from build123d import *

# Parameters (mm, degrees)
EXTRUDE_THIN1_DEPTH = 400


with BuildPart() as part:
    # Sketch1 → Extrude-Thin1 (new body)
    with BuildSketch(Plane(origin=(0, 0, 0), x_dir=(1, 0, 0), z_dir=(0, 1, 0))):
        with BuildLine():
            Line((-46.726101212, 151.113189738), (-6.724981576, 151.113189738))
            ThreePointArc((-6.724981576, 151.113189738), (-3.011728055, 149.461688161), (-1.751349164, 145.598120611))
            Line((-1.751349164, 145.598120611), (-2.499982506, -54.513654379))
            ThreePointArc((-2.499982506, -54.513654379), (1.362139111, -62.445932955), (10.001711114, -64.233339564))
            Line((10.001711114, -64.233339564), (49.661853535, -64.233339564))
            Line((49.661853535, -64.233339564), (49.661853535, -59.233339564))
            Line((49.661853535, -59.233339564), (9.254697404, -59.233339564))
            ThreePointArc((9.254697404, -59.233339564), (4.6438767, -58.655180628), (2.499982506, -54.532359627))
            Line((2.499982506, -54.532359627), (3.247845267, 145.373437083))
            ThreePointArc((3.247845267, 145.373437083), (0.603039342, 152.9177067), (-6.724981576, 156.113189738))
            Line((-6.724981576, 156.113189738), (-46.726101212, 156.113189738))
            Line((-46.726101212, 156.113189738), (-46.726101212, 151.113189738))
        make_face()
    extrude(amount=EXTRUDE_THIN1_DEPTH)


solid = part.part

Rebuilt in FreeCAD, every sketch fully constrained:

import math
import FreeCAD as App
import Part
import Sketcher

doc = App.newDocument("Part")
params = doc.addObject("Spreadsheet::Sheet", "Params")
for row, (alias, value) in enumerate([
    ("sketch1_height", "5 mm"),
    ("pad1_length", "400 mm"),
], start=1):
    params.set(f"A{row}", alias)
    params.set(f"B{row}", "=" + value)
    params.setAlias(f"B{row}", alias)

body = doc.addObject("PartDesign::Body", "Body")

# Sketch on XZ plane
sketch1 = body.newObject("Sketcher::SketchObject", "Sketch")
sketch1.AttachmentSupport = (doc.getObject("XZ_Plane"), [""])
sketch1.MapMode = "FlatFace"
sketch1.addGeometry([
    Part.LineSegment(App.Vector(-46.726101, -151.11319, 0), App.Vector(-6.724982, -151.11319, 0)),  # 0
    Part.ArcOfCircle(Part.Circle(App.Vector(-6.724982, -146.11298, 0), App.Vector(0, 0, 1), 5.00021), math.radians(-90), math.radians(5.910079)),  # 1
    Part.LineSegment(App.Vector(-1.751349, -145.598121, 0), App.Vector(-2.499983, 54.513654, 0)),  # 2
    Part.ArcOfCircle(Part.Circle(App.Vector(7.500157, 54.551066, 0), App.Vector(0, 0, 1), 10.00021), math.radians(75.513605), math.radians(180.214347)),  # 3
    Part.LineSegment(App.Vector(10.001711, 64.23334, 0), App.Vector(49.661854, 64.23334, 0)),  # 4
    Part.LineSegment(App.Vector(49.661854, 64.23334, 0), App.Vector(49.661854, 59.23334, 0)),  # 5
    Part.LineSegment(App.Vector(49.661854, 59.23334, 0), App.Vector(9.254697, 59.23334, 0)),  # 6
    Part.ArcOfCircle(Part.Circle(App.Vector(7.500157, 54.551066, 0), App.Vector(0, 0, 1), 5.00021), math.radians(69.458039), math.radians(180.214347)),  # 7
    Part.LineSegment(App.Vector(2.499983, 54.53236, 0), App.Vector(3.247845, -145.373437, 0)),  # 8
    Part.ArcOfCircle(Part.Circle(App.Vector(-6.724982, -146.11298, 0), App.Vector(0, 0, 1), 10.00021), math.radians(-90), math.radians(4.24105)),  # 9
    Part.LineSegment(App.Vector(-6.724982, -156.11319, 0), App.Vector(-46.726101, -156.11319, 0)),  # 10
    Part.LineSegment(App.Vector(-46.726101, -156.11319, 0), App.Vector(-46.726101, -151.11319, 0)),  # 11
], False)
sketch1.addConstraint([
    Sketcher.Constraint("Tangent", 0, 2, 1, 1),
    Sketcher.Constraint("Coincident", 1, 2, 2, 1),
    Sketcher.Constraint("Tangent", 2, 2, 3, 2),
    Sketcher.Constraint("Coincident", 3, 1, 4, 1),
    Sketcher.Constraint("Coincident", 4, 2, 5, 1),
    Sketcher.Constraint("Coincident", 5, 2, 6, 1),
    Sketcher.Constraint("Coincident", 6, 2, 7, 1),
    Sketcher.Constraint("Tangent", 7, 2, 8, 1),
    Sketcher.Constraint("Coincident", 8, 2, 9, 2),
    Sketcher.Constraint("Tangent", 9, 1, 10, 1),
    Sketcher.Constraint("Coincident", 10, 2, 11, 1),
    Sketcher.Constraint("Coincident", 11, 2, 0, 1),
    Sketcher.Constraint("Horizontal", 0),
    Sketcher.Constraint("Horizontal", 4),
    Sketcher.Constraint("Vertical", 5),
    Sketcher.Constraint("Horizontal", 6),
    Sketcher.Constraint("Horizontal", 10),
    Sketcher.Constraint("Vertical", 11),
    Sketcher.Constraint("Coincident", 7, 3, 3, 3),
    Sketcher.Constraint("Coincident", 9, 3, 1, 3),
    Sketcher.Constraint("Equal", 1, 7),
    Sketcher.Constraint("Equal", 3, 9),
    Sketcher.Constraint("Parallel", 2, 8),
    Sketcher.Constraint("Equal", 5, 11),
    Sketcher.Constraint("DistanceY", 5, 2, 5, 1, 5.0),
    Sketcher.Constraint("Radius", 1, 5.00021),
    Sketcher.Constraint("DistanceX", 1, 3, 2, 2, 4.224999),
    Sketcher.Constraint("DistanceX", 0, 1, 0, 2, 40.00112),
    Sketcher.Constraint("DistanceX", 10, 2, -1, 1, 46.726101),
    Sketcher.Constraint("DistanceX", 4, 1, 4, 2, 39.660142),
    Sketcher.Constraint("DistanceX", 6, 2, 6, 1, 40.407156),
    Sketcher.Constraint("DistanceY", 1, 3, -1, 1, 146.11298),
    Sketcher.Constraint("DistanceX", 1, 2, -1, 1, 1.751349),
    Sketcher.Constraint("DistanceY", -1, 1, 3, 1, 64.23334),
])
sketch1.setExpression("Constraints[24]", "Params.sketch1_height")
pad1 = body.newObject("PartDesign::Pad", "Pad")
pad1.Profile = sketch1
pad1.setExpression("Length", "Params.pad1_length")
pad1.Reversed = True

doc.recompute()
